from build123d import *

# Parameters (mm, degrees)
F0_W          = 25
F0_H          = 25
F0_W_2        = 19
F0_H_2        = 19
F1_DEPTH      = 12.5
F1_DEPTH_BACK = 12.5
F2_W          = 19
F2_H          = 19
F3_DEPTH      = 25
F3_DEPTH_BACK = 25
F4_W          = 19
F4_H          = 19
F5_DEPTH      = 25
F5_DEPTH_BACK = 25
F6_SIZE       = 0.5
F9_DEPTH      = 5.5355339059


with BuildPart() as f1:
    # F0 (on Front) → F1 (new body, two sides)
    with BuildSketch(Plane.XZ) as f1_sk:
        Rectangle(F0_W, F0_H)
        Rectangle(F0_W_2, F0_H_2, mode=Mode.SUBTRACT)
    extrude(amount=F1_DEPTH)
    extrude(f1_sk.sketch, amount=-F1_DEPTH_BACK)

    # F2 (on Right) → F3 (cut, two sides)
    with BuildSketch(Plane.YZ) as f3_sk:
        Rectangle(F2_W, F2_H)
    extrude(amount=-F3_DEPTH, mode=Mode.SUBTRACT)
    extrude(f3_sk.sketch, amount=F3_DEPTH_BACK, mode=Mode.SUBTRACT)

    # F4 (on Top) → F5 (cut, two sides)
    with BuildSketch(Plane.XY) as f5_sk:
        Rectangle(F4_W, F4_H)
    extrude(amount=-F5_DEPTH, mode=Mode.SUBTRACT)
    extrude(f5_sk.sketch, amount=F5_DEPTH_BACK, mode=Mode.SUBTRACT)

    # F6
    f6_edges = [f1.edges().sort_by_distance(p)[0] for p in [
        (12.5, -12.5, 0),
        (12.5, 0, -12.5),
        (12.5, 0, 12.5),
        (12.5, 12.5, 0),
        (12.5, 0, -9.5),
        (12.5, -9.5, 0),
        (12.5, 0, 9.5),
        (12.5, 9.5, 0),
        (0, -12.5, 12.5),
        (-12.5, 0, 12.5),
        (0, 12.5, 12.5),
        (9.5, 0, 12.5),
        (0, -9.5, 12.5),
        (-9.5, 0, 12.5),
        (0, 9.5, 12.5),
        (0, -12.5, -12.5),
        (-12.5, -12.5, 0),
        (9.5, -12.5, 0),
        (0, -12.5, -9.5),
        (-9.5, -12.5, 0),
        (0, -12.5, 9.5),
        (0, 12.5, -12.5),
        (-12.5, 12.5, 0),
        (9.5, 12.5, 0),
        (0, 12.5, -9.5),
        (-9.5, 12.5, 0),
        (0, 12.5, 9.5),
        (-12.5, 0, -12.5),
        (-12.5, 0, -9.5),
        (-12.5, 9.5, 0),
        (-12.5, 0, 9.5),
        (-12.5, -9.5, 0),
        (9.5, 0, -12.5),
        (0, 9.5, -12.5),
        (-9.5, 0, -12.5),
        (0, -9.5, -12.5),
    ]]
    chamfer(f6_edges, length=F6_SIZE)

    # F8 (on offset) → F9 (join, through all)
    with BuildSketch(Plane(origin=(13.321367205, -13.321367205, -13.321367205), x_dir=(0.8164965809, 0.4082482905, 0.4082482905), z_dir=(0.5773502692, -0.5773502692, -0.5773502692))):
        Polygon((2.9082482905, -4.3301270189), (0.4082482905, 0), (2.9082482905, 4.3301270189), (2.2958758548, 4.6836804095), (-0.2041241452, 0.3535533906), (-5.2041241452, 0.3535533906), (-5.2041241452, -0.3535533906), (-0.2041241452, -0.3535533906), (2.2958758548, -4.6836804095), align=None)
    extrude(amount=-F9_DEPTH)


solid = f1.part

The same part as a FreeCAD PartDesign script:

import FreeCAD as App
import Part
import Sketcher

V = App.Vector
Q = App.Units.Quantity


def edges_at(feature, points):
    """Names of the edges that pass closest to the given points."""
    edges = feature.Shape.Edges
    near = lambda p: min(range(len(edges)), key=lambda i: edges[i].distToShape(Part.Vertex(*p))[0])
    return sorted({f"Edge{near(p) + 1}" for p in points})

doc = App.newDocument("Part")
body = doc.addObject("PartDesign::Body", "Body")

# Sketch on XZ plane
sketch1 = doc.addObject("Sketcher::SketchObject", "Sketch")
body.addObject(sketch1)
sketch1.AttachmentSupport = (doc.XZ_Plane, [""])
sketch1.MapMode = "FlatFace"
sketch1.addGeometry([
    Part.LineSegment(V(-12.5, 12.5, 0), V(-12.5, -12.5, 0)),  # 0
    Part.LineSegment(V(-12.5, -12.5, 0), V(12.5, -12.5, 0)),  # 1
    Part.LineSegment(V(12.5, -12.5, 0), V(12.5, 12.5, 0)),  # 2
    Part.LineSegment(V(12.5, 12.5, 0), V(-12.5, 12.5, 0)),  # 3
    Part.LineSegment(V(9.5, -9.5, 0), V(-9.5, -9.5, 0)),  # 4
    Part.LineSegment(V(-9.5, -9.5, 0), V(-9.5, 9.5, 0)),  # 5
    Part.LineSegment(V(-9.5, 9.5, 0), V(9.5, 9.5, 0)),  # 6
    Part.LineSegment(V(9.5, 9.5, 0), V(9.5, -9.5, 0)),  # 7
], False)
sketch1.addConstraint([
    Sketcher.Constraint("Coincident", 0, 2, 1, 1),
    Sketcher.Constraint("Coincident", 1, 2, 2, 1),
    Sketcher.Constraint("Coincident", 2, 2, 3, 1),
    Sketcher.Constraint("Coincident", 3, 2, 0, 1),
    Sketcher.Constraint("Coincident", 4, 2, 5, 1),
    Sketcher.Constraint("Coincident", 5, 2, 6, 1),
    Sketcher.Constraint("Coincident", 6, 2, 7, 1),
    Sketcher.Constraint("Coincident", 7, 2, 4, 1),
    Sketcher.Constraint("Vertical", 0),
    Sketcher.Constraint("Horizontal", 1),
    Sketcher.Constraint("Vertical", 2),
    Sketcher.Constraint("Horizontal", 3),
    Sketcher.Constraint("Horizontal", 4),
    Sketcher.Constraint("Vertical", 5),
    Sketcher.Constraint("Horizontal", 6),
    Sketcher.Constraint("Vertical", 7),
    Sketcher.Constraint("Symmetric", 0, 2, 2, 2, -1, 1),
    Sketcher.Constraint("Symmetric", 4, 2, 6, 2, -1, 1),
    Sketcher.Constraint("Equal", 3, 0),
    Sketcher.Constraint("Equal", 6, 5),
    Sketcher.Constraint("DistanceX", 1, 1, 1, 2, 25.0),
    Sketcher.Constraint("DistanceX", 4, 2, 4, 1, 19.0),
])
pad1 = doc.addObject("PartDesign::Pad", "Pad")
body.addObject(pad1)
pad1.Profile = sketch1
pad1.Type = "TwoLengths"
pad1.Length = 12.5
pad1.Length2 = 12.5

# Sketch on YZ plane
sketch2 = doc.addObject("Sketcher::SketchObject", "Sketch001")
body.addObject(sketch2)
sketch2.AttachmentSupport = (doc.YZ_Plane, [""])
sketch2.MapMode = "FlatFace"
sketch2.addGeometry([
    Part.LineSegment(V(-9.5, 9.5, 0), V(-9.5, -9.5, 0)),
    Part.LineSegment(V(-9.5, -9.5, 0), V(9.5, -9.5, 0)),
    Part.LineSegment(V(9.5, -9.5, 0), V(9.5, 9.5, 0)),
    Part.LineSegment(V(9.5, 9.5, 0), V(-9.5, 9.5, 0)),
], False)
sketch2.addConstraint([
    Sketcher.Constraint("Coincident", 0, 2, 1, 1),
    Sketcher.Constraint("Coincident", 1, 2, 2, 1),
    Sketcher.Constraint("Coincident", 2, 2, 3, 1),
    Sketcher.Constraint("Coincident", 3, 2, 0, 1),
    Sketcher.Constraint("Vertical", 0),
    Sketcher.Constraint("Horizontal", 1),
    Sketcher.Constraint("Vertical", 2),
    Sketcher.Constraint("Horizontal", 3),
    Sketcher.Constraint("Symmetric", 0, 2, 2, 2, -1, 1),
    Sketcher.Constraint("Equal", 3, 0),
    Sketcher.Constraint("DistanceX", 1, 1, 1, 2, 19.0),
])
pocket1 = doc.addObject("PartDesign::Pocket", "Pocket")
body.addObject(pocket1)
pocket1.Profile = sketch2
pocket1.Type = "ThroughAll"
pocket1.Midplane = True

# Sketch on XY plane
sketch3 = doc.addObject("Sketcher::SketchObject", "Sketch002")
body.addObject(sketch3)
sketch3.AttachmentSupport = (doc.XY_Plane, [""])
sketch3.MapMode = "FlatFace"
sketch3.addGeometry([
    Part.LineSegment(V(-9.5, 9.5, 0), V(-9.5, -9.5, 0)),
    Part.LineSegment(V(-9.5, -9.5, 0), V(9.5, -9.5, 0)),
    Part.LineSegment(V(9.5, -9.5, 0), V(9.5, 9.5, 0)),
    Part.LineSegment(V(9.5, 9.5, 0), V(-9.5, 9.5, 0)),
], False)
sketch3.addConstraint([
    Sketcher.Constraint("Coincident", 0, 2, 1, 1),
    Sketcher.Constraint("Coincident", 1, 2, 2, 1),
    Sketcher.Constraint("Coincident", 2, 2, 3, 1),
    Sketcher.Constraint("Coincident", 3, 2, 0, 1),
    Sketcher.Constraint("Vertical", 0),
    Sketcher.Constraint("Horizontal", 1),
    Sketcher.Constraint("Vertical", 2),
    Sketcher.Constraint("Horizontal", 3),
    Sketcher.Constraint("Symmetric", 0, 2, 2, 2, -1, 1),
    Sketcher.Constraint("Equal", 3, 0),
    Sketcher.Constraint("DistanceX", 1, 1, 1, 2, 19.0),
])
pocket2 = doc.addObject("PartDesign::Pocket", "Pocket001")
body.addObject(pocket2)
pocket2.Profile = sketch3
pocket2.Type = "ThroughAll"
pocket2.Midplane = True
doc.recompute()

chamfer = doc.addObject("PartDesign::Chamfer", "Chamfer")
body.addObject(chamfer)
chamfer.Base = (pocket2, edges_at(pocket2, [
    (12.5, -12.5, 0),
    (12.5, 0, -12.5),
    (12.5, 0, 12.5),
    (12.5, 12.5, 0),
    (12.5, 0, -9.5),
    (12.5, -9.5, 0),
    (12.5, 0, 9.5),
    (12.5, 9.5, 0),
    (0, -12.5, 12.5),
    (-12.5, 0, 12.5),
    (0, 12.5, 12.5),
    (9.5, 0, 12.5),
    (0, -9.5, 12.5),
    (-9.5, 0, 12.5),
    (0, 9.5, 12.5),
    (0, -12.5, -12.5),
    (-12.5, -12.5, 0),
    (9.5, -12.5, 0),
    (0, -12.5, -9.5),
    (-9.5, -12.5, 0),
    (0, -12.5, 9.5),
    (0, 12.5, -12.5),
    (-12.5, 12.5, 0),
    (9.5, 12.5, 0),
    (0, 12.5, -9.5),
    (-9.5, 12.5, 0),
    (0, 12.5, 9.5),
    (-12.5, 0, -12.5),
    (-12.5, 0, -9.5),
    (-12.5, 9.5, 0),
    (-12.5, 0, 9.5),
    (-12.5, -9.5, 0),
    (9.5, 0, -12.5),
    (0, 9.5, -12.5),
    (-9.5, 0, -12.5),
    (0, -9.5, -12.5),
]))
chamfer.Size = 0.5

# Sketch on an angled plane
sketch4 = doc.addObject("Sketcher::SketchObject", "Sketch003")
body.addObject(sketch4)
sketch4.Placement = App.Placement(V(13.321367, -13.321367, -13.321367), App.Rotation(V(0.816496581, 0.40824829, 0.40824829), V(0, -0.707106781, 0.707106781), V(0.577350269, -0.577350269, -0.577350269), "ZXY"))
sketch4.addGeometry([
    Part.LineSegment(V(2.908248, -4.330127, 0), V(0.408248, 0, 0)),  # 0
    Part.LineSegment(V(0.408248, 0, 0), V(2.908248, 4.330127, 0)),  # 1
    Part.LineSegment(V(2.908248, 4.330127, 0), V(2.295876, 4.68368, 0)),  # 2
    Part.LineSegment(V(2.295876, 4.68368, 0), V(-0.204124, 0.353553, 0)),  # 3
    Part.LineSegment(V(-0.204124, 0.353553, 0), V(-5.204124, 0.353553, 0)),  # 4
    Part.LineSegment(V(-5.204124, 0.353553, 0), V(-5.204124, -0.353553, 0)),  # 5
    Part.LineSegment(V(-5.204124, -0.353553, 0), V(-0.204124, -0.353553, 0)),  # 6
    Part.LineSegment(V(-0.204124, -0.353553, 0), V(2.295876, -4.68368, 0)),  # 7
    Part.LineSegment(V(2.295876, -4.68368, 0), V(2.908248, -4.330127, 0)),  # 8
], False)
sketch4.addConstraint([
    Sketcher.Constraint("Coincident", 0, 2, 1, 1),
    Sketcher.Constraint("Coincident", 1, 2, 2, 1),
    Sketcher.Constraint("Coincident", 2, 2, 3, 1),
    Sketcher.Constraint("Coincident", 3, 2, 4, 1),
    Sketcher.Constraint("Coincident", 4, 2, 5, 1),
    Sketcher.Constraint("Coincident", 5, 2, 6, 1),
    Sketcher.Constraint("Coincident", 6, 2, 7, 1),
    Sketcher.Constraint("Coincident", 7, 2, 8, 1),
    Sketcher.Constraint("Coincident", 8, 2, 0, 1),
    Sketcher.Constraint("Horizontal", 4),
    Sketcher.Constraint("Vertical", 5),
    Sketcher.Constraint("Horizontal", 6),
    Sketcher.Constraint("Symmetric", 3, 2, 6, 2, -1),
    Sketcher.Constraint("Symmetric", 2, 2, 7, 2, -1),
    Sketcher.Constraint("Symmetric", 1, 2, 8, 2, -1),
    Sketcher.Constraint("PointOnObject", 0, 2, -1),
    Sketcher.Constraint("Perpendicular", 1, 2),
    Sketcher.Constraint("Perpendicular", 2, 3),
    Sketcher.Constraint("Equal", 1, 3),
    Sketcher.Constraint("DistanceX", 4, 2, 4, 1, 5.0),
    Sketcher.Constraint("Angle", 0, Q("120 deg")),
    Sketcher.Constraint("Distance", 0, 5.0),
    Sketcher.Constraint("DistanceY", 5, 2, 5, 1, 0.707107),
    Sketcher.Constraint("DistanceX", -1, 1, 0, 2, 0.408248),
])
pad2 = doc.addObject("PartDesign::Pad", "Pad001")
body.addObject(pad2)
pad2.Profile = sketch4
pad2.Length = 5.535534
pad2.Reversed = True

doc.recompute()
